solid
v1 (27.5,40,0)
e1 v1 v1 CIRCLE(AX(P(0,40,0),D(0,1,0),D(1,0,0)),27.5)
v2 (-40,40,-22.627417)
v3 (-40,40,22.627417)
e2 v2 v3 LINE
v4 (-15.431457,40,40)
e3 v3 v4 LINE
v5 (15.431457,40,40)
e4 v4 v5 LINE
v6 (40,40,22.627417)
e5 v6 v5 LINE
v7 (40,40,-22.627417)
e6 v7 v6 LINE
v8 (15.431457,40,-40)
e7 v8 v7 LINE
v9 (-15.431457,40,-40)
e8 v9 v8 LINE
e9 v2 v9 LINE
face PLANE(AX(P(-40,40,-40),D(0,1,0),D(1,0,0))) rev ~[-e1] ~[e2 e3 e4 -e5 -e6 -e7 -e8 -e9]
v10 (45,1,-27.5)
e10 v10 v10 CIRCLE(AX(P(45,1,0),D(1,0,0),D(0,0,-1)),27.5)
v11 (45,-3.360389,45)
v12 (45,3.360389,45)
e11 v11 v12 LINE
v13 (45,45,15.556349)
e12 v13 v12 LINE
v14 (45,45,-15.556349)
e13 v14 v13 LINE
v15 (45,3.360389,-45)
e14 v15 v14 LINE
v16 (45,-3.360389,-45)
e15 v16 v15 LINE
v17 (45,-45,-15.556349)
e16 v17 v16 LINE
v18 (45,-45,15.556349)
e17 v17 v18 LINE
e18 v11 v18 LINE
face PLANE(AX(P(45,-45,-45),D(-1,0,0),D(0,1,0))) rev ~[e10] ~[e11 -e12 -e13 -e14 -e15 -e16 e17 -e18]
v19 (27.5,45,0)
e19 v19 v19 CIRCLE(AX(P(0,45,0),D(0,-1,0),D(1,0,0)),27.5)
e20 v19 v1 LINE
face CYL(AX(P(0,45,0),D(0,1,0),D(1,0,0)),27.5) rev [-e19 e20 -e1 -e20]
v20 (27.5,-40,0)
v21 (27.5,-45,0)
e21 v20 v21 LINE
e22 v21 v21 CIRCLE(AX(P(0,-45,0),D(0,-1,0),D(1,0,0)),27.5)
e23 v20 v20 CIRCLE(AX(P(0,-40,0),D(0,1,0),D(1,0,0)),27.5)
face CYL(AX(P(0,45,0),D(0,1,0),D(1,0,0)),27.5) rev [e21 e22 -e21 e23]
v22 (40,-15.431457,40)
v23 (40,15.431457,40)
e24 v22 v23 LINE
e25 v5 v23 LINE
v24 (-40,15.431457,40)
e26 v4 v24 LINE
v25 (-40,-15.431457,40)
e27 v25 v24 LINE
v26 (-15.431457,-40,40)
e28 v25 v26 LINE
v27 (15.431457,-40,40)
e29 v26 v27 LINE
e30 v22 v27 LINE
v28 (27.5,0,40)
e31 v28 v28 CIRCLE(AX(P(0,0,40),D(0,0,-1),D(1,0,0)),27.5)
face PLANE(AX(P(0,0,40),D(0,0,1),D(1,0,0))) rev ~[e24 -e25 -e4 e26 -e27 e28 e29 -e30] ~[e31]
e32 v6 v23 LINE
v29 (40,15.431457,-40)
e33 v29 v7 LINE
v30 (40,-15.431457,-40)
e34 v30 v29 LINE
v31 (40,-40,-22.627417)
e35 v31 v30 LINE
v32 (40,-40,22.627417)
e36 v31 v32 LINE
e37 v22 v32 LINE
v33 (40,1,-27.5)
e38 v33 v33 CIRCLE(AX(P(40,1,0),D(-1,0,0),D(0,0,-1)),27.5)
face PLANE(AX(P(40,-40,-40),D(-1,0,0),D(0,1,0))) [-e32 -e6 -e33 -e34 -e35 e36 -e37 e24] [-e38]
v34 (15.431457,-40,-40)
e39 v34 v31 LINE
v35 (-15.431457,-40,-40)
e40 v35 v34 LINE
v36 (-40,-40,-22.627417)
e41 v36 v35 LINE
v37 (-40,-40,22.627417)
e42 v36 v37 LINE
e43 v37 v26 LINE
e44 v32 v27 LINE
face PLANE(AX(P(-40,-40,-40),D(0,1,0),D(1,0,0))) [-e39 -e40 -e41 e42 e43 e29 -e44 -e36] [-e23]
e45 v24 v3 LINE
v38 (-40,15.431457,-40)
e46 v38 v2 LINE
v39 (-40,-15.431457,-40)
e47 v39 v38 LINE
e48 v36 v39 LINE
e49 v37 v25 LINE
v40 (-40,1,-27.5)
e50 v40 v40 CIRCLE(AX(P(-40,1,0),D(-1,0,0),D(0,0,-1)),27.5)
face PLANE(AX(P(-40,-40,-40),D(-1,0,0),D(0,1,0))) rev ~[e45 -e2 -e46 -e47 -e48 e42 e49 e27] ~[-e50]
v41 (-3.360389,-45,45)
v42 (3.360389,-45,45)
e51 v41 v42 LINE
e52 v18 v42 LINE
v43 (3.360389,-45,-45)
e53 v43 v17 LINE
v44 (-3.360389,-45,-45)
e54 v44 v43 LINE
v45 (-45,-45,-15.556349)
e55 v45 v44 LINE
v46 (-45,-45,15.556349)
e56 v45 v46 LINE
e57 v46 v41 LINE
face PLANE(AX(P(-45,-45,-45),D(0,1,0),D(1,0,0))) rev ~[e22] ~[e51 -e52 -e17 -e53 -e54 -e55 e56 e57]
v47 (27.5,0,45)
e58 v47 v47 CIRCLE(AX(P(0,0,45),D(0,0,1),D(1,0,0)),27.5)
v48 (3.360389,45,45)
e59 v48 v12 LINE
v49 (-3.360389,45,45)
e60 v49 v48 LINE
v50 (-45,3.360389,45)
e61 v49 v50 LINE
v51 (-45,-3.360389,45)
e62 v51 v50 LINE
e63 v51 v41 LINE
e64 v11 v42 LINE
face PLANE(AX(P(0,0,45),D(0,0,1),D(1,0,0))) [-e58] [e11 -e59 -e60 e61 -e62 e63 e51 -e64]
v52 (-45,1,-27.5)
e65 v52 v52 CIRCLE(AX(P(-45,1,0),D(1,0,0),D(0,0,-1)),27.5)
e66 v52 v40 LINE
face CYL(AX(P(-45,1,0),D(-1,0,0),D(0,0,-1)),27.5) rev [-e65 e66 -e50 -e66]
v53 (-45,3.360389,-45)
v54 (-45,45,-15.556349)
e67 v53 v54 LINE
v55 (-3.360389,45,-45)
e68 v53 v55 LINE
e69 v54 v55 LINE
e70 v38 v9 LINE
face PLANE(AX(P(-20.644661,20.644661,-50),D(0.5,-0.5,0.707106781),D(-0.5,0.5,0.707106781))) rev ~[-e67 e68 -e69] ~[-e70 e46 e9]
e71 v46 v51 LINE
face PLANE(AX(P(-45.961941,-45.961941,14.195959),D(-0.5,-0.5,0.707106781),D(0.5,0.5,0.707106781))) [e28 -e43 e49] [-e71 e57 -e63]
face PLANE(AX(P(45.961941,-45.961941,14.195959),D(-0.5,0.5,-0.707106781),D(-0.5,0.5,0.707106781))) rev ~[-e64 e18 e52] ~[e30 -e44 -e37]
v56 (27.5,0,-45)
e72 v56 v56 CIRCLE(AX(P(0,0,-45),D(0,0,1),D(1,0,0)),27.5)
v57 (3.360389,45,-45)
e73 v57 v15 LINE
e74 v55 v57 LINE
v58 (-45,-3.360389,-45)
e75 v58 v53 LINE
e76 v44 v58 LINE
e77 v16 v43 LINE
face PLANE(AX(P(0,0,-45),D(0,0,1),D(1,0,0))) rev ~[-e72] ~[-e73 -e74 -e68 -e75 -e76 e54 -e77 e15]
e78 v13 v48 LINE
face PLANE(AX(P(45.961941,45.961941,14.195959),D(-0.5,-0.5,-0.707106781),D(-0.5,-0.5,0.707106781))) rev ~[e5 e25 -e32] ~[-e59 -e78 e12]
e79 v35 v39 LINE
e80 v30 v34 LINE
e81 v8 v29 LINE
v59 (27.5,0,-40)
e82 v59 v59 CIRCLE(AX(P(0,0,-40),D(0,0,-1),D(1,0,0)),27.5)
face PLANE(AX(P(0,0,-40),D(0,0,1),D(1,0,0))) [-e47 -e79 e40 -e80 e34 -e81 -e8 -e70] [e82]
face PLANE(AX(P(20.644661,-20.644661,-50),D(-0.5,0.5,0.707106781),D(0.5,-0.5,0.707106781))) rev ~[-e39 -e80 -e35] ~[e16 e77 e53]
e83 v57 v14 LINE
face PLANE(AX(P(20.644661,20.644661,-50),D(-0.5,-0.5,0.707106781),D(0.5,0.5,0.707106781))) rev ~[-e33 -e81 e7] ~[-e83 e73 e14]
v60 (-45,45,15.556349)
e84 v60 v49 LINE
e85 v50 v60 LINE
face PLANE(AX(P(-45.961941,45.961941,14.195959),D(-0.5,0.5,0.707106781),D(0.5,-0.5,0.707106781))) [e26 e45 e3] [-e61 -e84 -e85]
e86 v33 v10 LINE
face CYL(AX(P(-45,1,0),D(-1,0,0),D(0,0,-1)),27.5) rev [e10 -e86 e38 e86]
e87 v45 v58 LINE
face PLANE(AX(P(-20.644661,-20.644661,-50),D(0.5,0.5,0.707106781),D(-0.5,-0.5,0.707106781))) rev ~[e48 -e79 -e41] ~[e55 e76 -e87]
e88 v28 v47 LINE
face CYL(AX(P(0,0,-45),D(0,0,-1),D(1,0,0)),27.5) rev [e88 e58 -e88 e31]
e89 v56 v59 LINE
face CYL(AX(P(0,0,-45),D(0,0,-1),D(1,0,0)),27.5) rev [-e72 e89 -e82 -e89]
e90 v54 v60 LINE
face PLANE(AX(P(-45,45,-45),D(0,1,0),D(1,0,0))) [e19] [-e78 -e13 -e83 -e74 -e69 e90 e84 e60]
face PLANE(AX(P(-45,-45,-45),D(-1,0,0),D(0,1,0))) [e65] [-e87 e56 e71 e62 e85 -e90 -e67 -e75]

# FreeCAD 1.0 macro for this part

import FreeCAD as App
import Part
import Sketcher
Q = App.Units.Quantity

doc = App.newDocument("Part")
body = doc.addObject("PartDesign::Body", "Body")
body.AllowCompound = True

# Sketch on XZ plane
sketch1 = doc.addObject("Sketcher::SketchObject", "Sketch")
body.addObject(sketch1)
sketch1.AttachmentSupport = (doc.XZ_Plane, [""])
sketch1.MapMode = "FlatFace"
sketch1.addGeometry([
    Part.LineSegment(App.Vector(-29, 50, 0), App.Vector(-65, 50, 0)),  # 0
    Part.LineSegment(App.Vector(-65, 50, 0), App.Vector(-65, 14, 0)),  # 1
    Part.LineSegment(App.Vector(-65, 14, 0), App.Vector(-29, 50, 0)),  # 2
    Part.LineSegment(App.Vector(65, 50, 0), App.Vector(29, 50, 0)),  # 3
    Part.LineSegment(App.Vector(29, 50, 0), App.Vector(65, 14, 0)),  # 4
    Part.LineSegment(App.Vector(65, 14, 0), App.Vector(65, 50, 0)),  # 5
    Part.LineSegment(App.Vector(65, -50, 0), App.Vector(65, -14, 0)),  # 6
    Part.LineSegment(App.Vector(65, -14, 0), App.Vector(29, -50, 0)),  # 7
    Part.LineSegment(App.Vector(29, -50, 0), App.Vector(65, -50, 0)),  # 8
    Part.LineSegment(App.Vector(-65, -14, 0), App.Vector(-65, -50, 0)),  # 9
    Part.LineSegment(App.Vector(-65, -50, 0), App.Vector(-29, -50, 0)),  # 10
    Part.LineSegment(App.Vector(-29, -50, 0), App.Vector(-65, -14, 0)),  # 11
], False)
sketch1.addConstraint([
    Sketcher.Constraint("Coincident", 0, 2, 1, 1),
    Sketcher.Constraint("Coincident", 1, 2, 2, 1),
    Sketcher.Constraint("Coincident", 2, 2, 0, 1),
    Sketcher.Constraint("Coincident", 3, 2, 4, 1),
    Sketcher.Constraint("Coincident", 4, 2, 5, 1),
    Sketcher.Constraint("Coincident", 5, 2, 3, 1),
    Sketcher.Constraint("Coincident", 6, 2, 7, 1),
    Sketcher.Constraint("Coincident", 7, 2, 8, 1),
    Sketcher.Constraint("Coincident", 8, 2, 6, 1),
    Sketcher.Constraint("Coincident", 9, 2, 10, 1),
    Sketcher.Constraint("Coincident", 10, 2, 11, 1),
    Sketcher.Constraint("Coincident", 11, 2, 9, 1),
    Sketcher.Constraint("Horizontal", 0),
    Sketcher.Constraint("Vertical", 1),
    Sketcher.Constraint("Horizontal", 3),
    Sketcher.Constraint("Vertical", 5),
    Sketcher.Constraint("Vertical", 6),
    Sketcher.Constraint("Horizontal", 8),
    Sketcher.Constraint("Vertical", 9),
    Sketcher.Constraint("Horizontal", 10),
    Sketcher.Constraint("Symmetric", 1, 2, 6, 2, -1, 1),
    Sketcher.Constraint("Symmetric", 2, 2, 7, 2, -1, 1),
    Sketcher.Constraint("Symmetric", 5, 2, 9, 2, -1, 1),
    Sketcher.Constraint("Symmetric", 2, 2, 3, 2, -2),
    Sketcher.Constraint("Symmetric", 1, 2, 4, 2, -2),
    Sketcher.Constraint("Perpendicular", 2, 4),
    Sketcher.Constraint("Perpendicular", 7, 11),
    Sketcher.Constraint("Horizontal", 6, 2, 11, 2),
    Sketcher.Constraint("DistanceX", 0, 2, -1, 1, Q("65 mm")),
    Sketcher.Constraint("DistanceY", -1, 1, 0, 2, Q("50 mm")),
    Sketcher.Constraint("DistanceX", 0, 2, 0, 1, Q("35.804041 mm")),
])
pad1 = doc.addObject("PartDesign::Pad", "Pad")
body.addObject(pad1)
pad1.Profile = sketch1
pad1.Length = 60
pad1.Midplane = True
body2 = doc.addObject("PartDesign::Body", "Body001")
body2.AllowCompound = True
doc.recompute()

body.Placement = App.Placement(App.Vector(0, 0, 0), App.Rotation(App.Vector(0, 0, 1), 315))
boolean = doc.addObject("PartDesign::Boolean", "Boolean")
body2.addObject(boolean)
boolean.Type = "Fuse"
boolean.addObjects([body])
body3 = doc.addObject("PartDesign::Body", "Body002")
body3.AllowCompound = True

# Sketch on XZ plane
sketch2 = doc.addObject("Sketcher::SketchObject", "Sketch001")
body3.addObject(sketch2)
sketch2.AttachmentSupport = (doc.getObject("XZ_Plane002"), [""])
sketch2.MapMode = "FlatFace"
sketch2.addGeometry([
    Part.LineSegment(App.Vector(-29, 50, 0), App.Vector(-65, 50, 0)),  # 0
    Part.LineSegment(App.Vector(-65, 50, 0), App.Vector(-65, 14, 0)),  # 1
    Part.LineSegment(App.Vector(-65, 14, 0), App.Vector(-29, 50, 0)),  # 2
    Part.LineSegment(App.Vector(65, 50, 0), App.Vector(29, 50, 0)),  # 3
    Part.LineSegment(App.Vector(29, 50, 0), App.Vector(65, 14, 0)),  # 4
    Part.LineSegment(App.Vector(65, 14, 0), App.Vector(65, 50, 0)),  # 5
    Part.LineSegment(App.Vector(65, -50, 0), App.Vector(65, -14, 0)),  # 6
    Part.LineSegment(App.Vector(65, -14, 0), App.Vector(29, -50, 0)),  # 7
    Part.LineSegment(App.Vector(29, -50, 0), App.Vector(65, -50, 0)),  # 8
    Part.LineSegment(App.Vector(-65, -14, 0), App.Vector(-65, -50, 0)),  # 9
    Part.LineSegment(App.Vector(-65, -50, 0), App.Vector(-29, -50, 0)),  # 10
    Part.LineSegment(App.Vector(-29, -50, 0), App.Vector(-65, -14, 0)),  # 11
], False)
sketch2.addConstraint([
    Sketcher.Constraint("Coincident", 0, 2, 1, 1),
    Sketcher.Constraint("Coincident", 1, 2, 2, 1),
    Sketcher.Constraint("Coincident", 2, 2, 0, 1),
    Sketcher.Constraint("Coincident", 3, 2, 4, 1),
    Sketcher.Constraint("Coincident", 4, 2, 5, 1),
    Sketcher.Constraint("Coincident", 5, 2, 3, 1),
    Sketcher.Constraint("Coincident", 6, 2, 7, 1),
    Sketcher.Constraint("Coincident", 7, 2, 8, 1),
    Sketcher.Constraint("Coincident", 8, 2, 6, 1),
    Sketcher.Constraint("Coincident", 9, 2, 10, 1),
    Sketcher.Constraint("Coincident", 10, 2, 11, 1),
    Sketcher.Constraint("Coincident", 11, 2, 9, 1),
    Sketcher.Constraint("Horizontal", 0),
    Sketcher.Constraint("Vertical", 1),
    Sketcher.Constraint("Horizontal", 3),
    Sketcher.Constraint("Vertical", 5),
    Sketcher.Constraint("Vertical", 6),
    Sketcher.Constraint("Horizontal", 8),
    Sketcher.Constraint("Vertical", 9),
    Sketcher.Constraint("Horizontal", 10),
    Sketcher.Constraint("Symmetric", 1, 2, 6, 2, -1, 1),
    Sketcher.Constraint("Symmetric", 2, 2, 7, 2, -1, 1),
    Sketcher.Constraint("Symmetric", 5, 2, 9, 2, -1, 1),
    Sketcher.Constraint("Symmetric", 2, 2, 3, 2, -2),
    Sketcher.Constraint("Symmetric", 1, 2, 4, 2, -2),
    Sketcher.Constraint("Perpendicular", 2, 4),
    Sketcher.Constraint("Perpendicular", 7, 11),
    Sketcher.Constraint("Horizontal", 6, 2, 11, 2),
    Sketcher.Constraint("DistanceX", 0, 2, -1, 1, Q("65 mm")),
    Sketcher.Constraint("DistanceY", -1, 1, 0, 2, Q("50 mm")),
    Sketcher.Constraint("DistanceX", 0, 2, 0, 1, Q("35.804041 mm")),
])
pad2 = doc.addObject("PartDesign::Pad", "Pad001")
body3.addObject(pad2)
pad2.Profile = sketch2
pad2.Length = 60
pad2.Midplane = True
body4 = doc.addObject("PartDesign::Body", "Body003")
body4.AllowCompound = True
doc.recompute()

body3.Placement = App.Placement(App.Vector(0, 0, 0), App.Rotation(App.Vector(0, 0, 1), 45))
boolean2 = doc.addObject("PartDesign::Boolean", "Boolean001")
body4.addObject(boolean2)
boolean2.Type = "Fuse"
boolean2.addObjects([body3])
body5 = doc.addObject("PartDesign::Body", "Body004")

# Sketch on YZ plane
sketch3 = doc.addObject("Sketcher::SketchObject", "Sketch002")
body5.addObject(sketch3)
sketch3.AttachmentSupport = (doc.getObject("YZ_Plane004"), [""])
sketch3.MapMode = "FlatFace"
sketch3.AttachmentOffset = App.Placement(App.Vector(0, 0, -45), App.Rotation())
sketch3.addGeometry(Part.Circle(App.Vector(1, 0, 0), App.Vector(0, 0, 1), 28), False)
sketch3.addConstraint([
    Sketcher.Constraint("PointOnObject", 0, 3, -1),
    Sketcher.Constraint("Diameter", 0, Q("55 mm")),
    Sketcher.Constraint("DistanceX", -1, 1, 0, 3, Q("1 mm")),
])
pad3 = doc.addObject("PartDesign::Pad", "Pad002")
body5.addObject(pad3)
pad3.Profile = sketch3
pad3.Length = 90
body6 = doc.addObject("PartDesign::Body", "Body005")

# Sketch on XZ plane
sketch4 = doc.addObject("Sketcher::SketchObject", "Sketch003")
body6.addObject(sketch4)
sketch4.AttachmentSupport = (doc.getObject("XZ_Plane005"), [""])
sketch4.MapMode = "FlatFace"
sketch4.AttachmentOffset = App.Placement(App.Vector(0, 0, -45), App.Rotation())
sketch4.addGeometry(Part.Circle(App.Vector(0, 0, 0), App.Vector(0, 0, 1), 28), False)
sketch4.addConstraint([
    Sketcher.Constraint("Coincident", 0, 3, -1, 1),
    Sketcher.Constraint("Diameter", 0, Q("55 mm")),
])
pad4 = doc.addObject("PartDesign::Pad", "Pad003")
body6.addObject(pad4)
pad4.Profile = sketch4
pad4.Length = 90
body7 = doc.addObject("PartDesign::Body", "Body006")

# Sketch on XY plane
sketch5 = doc.addObject("Sketcher::SketchObject", "Sketch004")
body7.addObject(sketch5)
sketch5.AttachmentSupport = (doc.getObject("XY_Plane006"), [""])
sketch5.MapMode = "FlatFace"
sketch5.AttachmentOffset = App.Placement(App.Vector(0, 0, -45), App.Rotation())
sketch5.addGeometry(Part.Circle(App.Vector(0, 0, 0), App.Vector(0, 0, 1), 28), False)
sketch5.addConstraint([
    Sketcher.Constraint("Coincident", 0, 3, -1, 1),
    Sketcher.Constraint("Diameter", 0, Q("55 mm")),
])
pad5 = doc.addObject("PartDesign::Pad", "Pad004")
body7.addObject(pad5)
pad5.Profile = sketch5
pad5.Length = 90
body8 = doc.addObject("PartDesign::Body", "Body007")

# Sketch on XY plane
sketch6 = doc.addObject("Sketcher::SketchObject", "Sketch005")
body8.addObject(sketch6)
sketch6.AttachmentSupport = (doc.getObject("XY_Plane007"), [""])
sketch6.MapMode = "FlatFace"
sketch6.AttachmentOffset = App.Placement(App.Vector(0, 0, -40), App.Rotation())
sketch6.addGeometry([
    Part.LineSegment(App.Vector(-40, 40, 0), App.Vector(-40, -40, 0)),
    Part.LineSegment(App.Vector(-40, -40, 0), App.Vector(40, -40, 0)),
    Part.LineSegment(App.Vector(40, -40, 0), App.Vector(40, 40, 0)),
    Part.LineSegment(App.Vector(40, 40, 0), App.Vector(-40, 40, 0)),
], False)
sketch6.addConstraint([
    Sketcher.Constraint("Coincident", 0, 2, 1, 1),
    Sketcher.Constraint("Coincident", 1, 2, 2, 1),
    Sketcher.Constraint("Coincident", 2, 2, 3, 1),
    Sketcher.Constraint("Coincident", 3, 2, 0, 1),
    Sketcher.Constraint("Vertical", 0),
    Sketcher.Constraint("Horizontal", 1),
    Sketcher.Constraint("Vertical", 2),
    Sketcher.Constraint("Horizontal", 3),
    Sketcher.Constraint("Symmetric", 0, 2, 2, 2, -1, 1),
    Sketcher.Constraint("Equal", 3, 0),
    Sketcher.Constraint("DistanceX", 1, 1, 1, 2, Q("80 mm")),
])
pad6 = doc.addObject("PartDesign::Pad", "Pad005")
body8.addObject(pad6)
pad6.Profile = sketch6
pad6.Length = 80
body9 = doc.addObject("PartDesign::Body", "Body008")

# Sketch on XY plane
sketch7 = doc.addObject("Sketcher::SketchObject", "Sketch006")
body9.addObject(sketch7)
sketch7.AttachmentSupport = (doc.getObject("XY_Plane008"), [""])
sketch7.MapMode = "FlatFace"
sketch7.AttachmentOffset = App.Placement(App.Vector(0, 0, -45), App.Rotation())
sketch7.addGeometry([
    Part.LineSegment(App.Vector(-45, 45, 0), App.Vector(-45, -45, 0)),
    Part.LineSegment(App.Vector(-45, -45, 0), App.Vector(45, -45, 0)),
    Part.LineSegment(App.Vector(45, -45, 0), App.Vector(45, 45, 0)),
    Part.LineSegment(App.Vector(45, 45, 0), App.Vector(-45, 45, 0)),
], False)
sketch7.addConstraint([
    Sketcher.Constraint("Coincident", 0, 2, 1, 1),
    Sketcher.Constraint("Coincident", 1, 2, 2, 1),
    Sketcher.Constraint("Coincident", 2, 2, 3, 1),
    Sketcher.Constraint("Coincident", 3, 2, 0, 1),
    Sketcher.Constraint("Vertical", 0),
    Sketcher.Constraint("Horizontal", 1),
    Sketcher.Constraint("Vertical", 2),
    Sketcher.Constraint("Horizontal", 3),
    Sketcher.Constraint("Symmetric", 0, 2, 2, 2, -1, 1),
    Sketcher.Constraint("Equal", 3, 0),
    Sketcher.Constraint("DistanceX", 1, 1, 1, 2, Q("90 mm")),
])
pad7 = doc.addObject("PartDesign::Pad", "Pad006")
body9.addObject(pad7)
pad7.Profile = sketch7
pad7.Length = 90
doc.recompute()

boolean3 = doc.addObject("PartDesign::Boolean", "Boolean002")
body9.addObject(boolean3)
boolean3.Type = "Cut"
boolean3.addObjects([body8])
doc.recompute()

boolean4 = doc.addObject("PartDesign::Boolean", "Boolean003")
body9.addObject(boolean4)
boolean4.Type = "Cut"
boolean4.addObjects([body7])
doc.recompute()

boolean5 = doc.addObject("PartDesign::Boolean", "Boolean004")
body9.addObject(boolean5)
boolean5.Type = "Cut"
boolean5.addObjects([body6])
doc.recompute()

boolean6 = doc.addObject("PartDesign::Boolean", "Boolean005")
body9.addObject(boolean6)
boolean6.Type = "Cut"
boolean6.addObjects([body5])
doc.recompute()

boolean7 = doc.addObject("PartDesign::Boolean", "Boolean006")
body9.addObject(boolean7)
boolean7.Type = "Cut"
boolean7.addObjects([body4])
doc.recompute()

boolean8 = doc.addObject("PartDesign::Boolean", "Boolean007")
body9.addObject(boolean8)
boolean8.Type = "Cut"
boolean8.addObjects([body2])

doc.recompute()
